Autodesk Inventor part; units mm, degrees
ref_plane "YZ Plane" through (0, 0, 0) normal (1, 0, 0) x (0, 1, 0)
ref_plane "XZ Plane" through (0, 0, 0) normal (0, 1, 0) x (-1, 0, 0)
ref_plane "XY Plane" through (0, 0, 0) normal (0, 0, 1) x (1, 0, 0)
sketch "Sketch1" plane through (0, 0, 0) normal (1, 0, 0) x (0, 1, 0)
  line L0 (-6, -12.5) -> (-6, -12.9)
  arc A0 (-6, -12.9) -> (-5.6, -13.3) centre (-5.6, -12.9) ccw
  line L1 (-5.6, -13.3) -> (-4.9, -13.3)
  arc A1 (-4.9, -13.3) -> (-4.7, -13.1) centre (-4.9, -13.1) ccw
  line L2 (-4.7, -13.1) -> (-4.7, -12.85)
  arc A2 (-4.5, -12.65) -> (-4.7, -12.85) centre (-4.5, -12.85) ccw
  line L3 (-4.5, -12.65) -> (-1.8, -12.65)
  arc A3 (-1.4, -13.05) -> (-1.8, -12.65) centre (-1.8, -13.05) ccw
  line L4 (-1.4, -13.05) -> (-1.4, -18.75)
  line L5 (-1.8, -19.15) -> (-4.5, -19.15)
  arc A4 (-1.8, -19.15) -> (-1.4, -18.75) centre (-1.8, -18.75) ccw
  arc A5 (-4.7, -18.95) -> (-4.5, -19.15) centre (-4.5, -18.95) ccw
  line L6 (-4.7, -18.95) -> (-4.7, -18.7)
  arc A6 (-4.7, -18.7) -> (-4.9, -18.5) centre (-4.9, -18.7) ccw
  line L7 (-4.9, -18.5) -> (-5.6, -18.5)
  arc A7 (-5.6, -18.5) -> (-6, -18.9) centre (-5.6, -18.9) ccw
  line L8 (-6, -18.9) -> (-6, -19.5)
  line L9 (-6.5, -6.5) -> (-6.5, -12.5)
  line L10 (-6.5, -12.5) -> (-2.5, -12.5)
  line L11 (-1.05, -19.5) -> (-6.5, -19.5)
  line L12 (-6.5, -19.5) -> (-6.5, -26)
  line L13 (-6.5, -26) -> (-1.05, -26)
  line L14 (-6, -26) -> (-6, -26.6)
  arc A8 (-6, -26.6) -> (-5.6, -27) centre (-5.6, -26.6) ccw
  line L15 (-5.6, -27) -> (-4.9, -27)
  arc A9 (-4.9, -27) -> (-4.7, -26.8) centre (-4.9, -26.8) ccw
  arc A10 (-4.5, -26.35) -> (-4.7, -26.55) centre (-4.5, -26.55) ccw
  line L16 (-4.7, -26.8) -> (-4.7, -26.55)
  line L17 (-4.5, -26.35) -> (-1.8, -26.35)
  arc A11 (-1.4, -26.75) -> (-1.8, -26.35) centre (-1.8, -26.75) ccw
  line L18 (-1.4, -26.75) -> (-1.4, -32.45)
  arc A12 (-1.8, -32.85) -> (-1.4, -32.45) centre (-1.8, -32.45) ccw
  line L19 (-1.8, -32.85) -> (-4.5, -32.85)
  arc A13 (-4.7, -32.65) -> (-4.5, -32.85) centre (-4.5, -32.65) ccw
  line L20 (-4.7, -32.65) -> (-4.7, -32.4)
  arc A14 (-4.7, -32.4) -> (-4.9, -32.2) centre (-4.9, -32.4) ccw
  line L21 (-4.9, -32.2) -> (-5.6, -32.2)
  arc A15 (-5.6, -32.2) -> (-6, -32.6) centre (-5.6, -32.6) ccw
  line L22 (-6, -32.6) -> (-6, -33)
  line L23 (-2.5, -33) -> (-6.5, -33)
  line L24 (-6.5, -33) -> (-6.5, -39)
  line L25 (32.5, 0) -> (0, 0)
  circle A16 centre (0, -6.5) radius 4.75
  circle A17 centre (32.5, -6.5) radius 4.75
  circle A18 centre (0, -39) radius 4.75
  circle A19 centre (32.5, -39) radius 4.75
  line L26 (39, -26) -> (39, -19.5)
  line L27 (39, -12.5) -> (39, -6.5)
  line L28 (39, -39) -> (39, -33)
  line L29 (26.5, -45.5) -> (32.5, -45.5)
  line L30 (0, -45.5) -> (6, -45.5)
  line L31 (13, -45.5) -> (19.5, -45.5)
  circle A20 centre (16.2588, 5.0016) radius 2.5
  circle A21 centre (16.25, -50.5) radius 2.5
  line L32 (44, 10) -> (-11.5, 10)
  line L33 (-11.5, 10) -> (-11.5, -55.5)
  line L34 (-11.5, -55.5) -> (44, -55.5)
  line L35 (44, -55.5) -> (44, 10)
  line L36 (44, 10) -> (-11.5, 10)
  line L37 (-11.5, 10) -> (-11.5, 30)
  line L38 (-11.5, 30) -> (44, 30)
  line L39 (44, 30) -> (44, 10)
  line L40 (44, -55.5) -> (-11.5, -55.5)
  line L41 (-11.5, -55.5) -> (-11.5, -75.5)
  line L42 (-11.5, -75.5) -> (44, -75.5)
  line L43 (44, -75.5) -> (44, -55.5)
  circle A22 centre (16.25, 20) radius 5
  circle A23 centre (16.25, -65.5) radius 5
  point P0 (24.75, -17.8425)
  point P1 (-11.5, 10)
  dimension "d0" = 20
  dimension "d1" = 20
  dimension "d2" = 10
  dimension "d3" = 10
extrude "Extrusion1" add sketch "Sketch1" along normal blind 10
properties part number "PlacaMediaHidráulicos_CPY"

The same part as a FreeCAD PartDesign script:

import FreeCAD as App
import Part
import Sketcher

V = App.Vector
Q = App.Units.Quantity

doc = App.newDocument("Part")
body = doc.addObject("PartDesign::Body", "Body")

# Sketch on YZ plane
sketch1 = doc.addObject("Sketcher::SketchObject", "Sketch")
body.addObject(sketch1)
sketch1.AttachmentSupport = (doc.YZ_Plane, [""])
sketch1.MapMode = "FlatFace"
sketch1.addGeometry(Part.LineSegment(V(44, 30, 0), V(-11.5, 30, 0)), False)
sketch1.addGeometry(Part.LineSegment(V(-11.5, 30, 0), V(-11.5, -75.5, 0)), False)
sketch1.addGeometry(Part.LineSegment(V(-11.5, -75.5, 0), V(44, -75.5, 0)), False)
sketch1.addGeometry(Part.LineSegment(V(44, -75.5, 0), V(44, 30, 0)), False)
sketch1.addGeometry(Part.Circle(V(0, -39, 0), V(0, 0, 1), 4.8), False)
sketch1.addGeometry(Part.Circle(V(16.2, -50.5, 0), V(0, 0, 1), 2.5), False)
sketch1.addGeometry(Part.Circle(V(32.5, -39, 0), V(0, 0, 1), 4.8), False)
sketch1.addGeometry(Part.Circle(V(0, -6.5, 0), V(0, 0, 1), 4.8), False)
sketch1.addGeometry(Part.Circle(V(32.5, -6.5, 0), V(0, 0, 1), 4.8), False)
sketch1.addGeometry(Part.Circle(V(16.3, 5, 0), V(0, 0, 1), 2.5), False)
sketch1.addGeometry(Part.Circle(V(16.2, -65.5, 0), V(0, 0, 1), 5), False)
sketch1.addGeometry(Part.Circle(V(16.2, 20, 0), V(0, 0, 1), 5), False)
sketch1.addConstraint(Sketcher.Constraint("Coincident", 0, 2, 1, 1))
sketch1.addConstraint(Sketcher.Constraint("Coincident", 1, 2, 2, 1))
sketch1.addConstraint(Sketcher.Constraint("Coincident", 2, 2, 3, 1))
sketch1.addConstraint(Sketcher.Constraint("Coincident", 3, 2, 0, 1))
sketch1.addConstraint(Sketcher.Constraint("Horizontal", 0))
sketch1.addConstraint(Sketcher.Constraint("Vertical", 1))
sketch1.addConstraint(Sketcher.Constraint("Horizontal", 2))
sketch1.addConstraint(Sketcher.Constraint("Vertical", 3))
sketch1.addConstraint(Sketcher.Constraint("Equal", 4, 6))
sketch1.addConstraint(Sketcher.Constraint("Equal", 6, 7))
sketch1.addConstraint(Sketcher.Constraint("Equal", 7, 8))
sketch1.addConstraint(Sketcher.Constraint("Equal", 5, 9))
sketch1.addConstraint(Sketcher.Constraint("Equal", 10, 11))
sketch1.addConstraint(Sketcher.Constraint("PointOnObject", 4, 3, -2))
sketch1.addConstraint(Sketcher.Constraint("PointOnObject", 7, 3, -2))
sketch1.addConstraint(Sketcher.Constraint("Horizontal", 4, 3, 6, 3))
sketch1.addConstraint(Sketcher.Constraint("Horizontal", 7, 3, 8, 3))
sketch1.addConstraint(Sketcher.Constraint("Vertical", 6, 3, 8, 3))
sketch1.addConstraint(Sketcher.Constraint("Vertical", 5, 3, 10, 3))
sketch1.addConstraint(Sketcher.Constraint("Vertical", 10, 3, 11, 3))
sketch1.addConstraint(Sketcher.Constraint("Diameter", 10, Q("10 mm")))
sketch1.addConstraint(Sketcher.Constraint("Diameter", 5, Q("5 mm")))
sketch1.addConstraint(Sketcher.Constraint("DistanceY", -1, 1, 11, 3, Q("20 mm")))
sketch1.addConstraint(Sketcher.Constraint("DistanceY", 11, 3, 0, 2, Q("10 mm")))
sketch1.addConstraint(Sketcher.Constraint("DistanceY", 1, 2, 10, 3, Q("10 mm")))
sketch1.addConstraint(Sketcher.Constraint("Diameter", 4, Q("9.5 mm")))
sketch1.addConstraint(Sketcher.Constraint("DistanceX", 0, 2, 0, 1, Q("55.5 mm")))
sketch1.addConstraint(Sketcher.Constraint("DistanceY", 1, 2, 1, 1, Q("105.5 mm")))
sketch1.addConstraint(Sketcher.Constraint("DistanceY", 4, 3, -1, 1, Q("39 mm")))
sketch1.addConstraint(Sketcher.Constraint("DistanceX", -1, 1, 2, 2, Q("44 mm")))
sketch1.addConstraint(Sketcher.Constraint("DistanceY", 5, 3, 7, 3, Q("44 mm")))
sketch1.addConstraint(Sketcher.Constraint("DistanceY", 10, 3, 5, 3, Q("15 mm")))
sketch1.addConstraint(Sketcher.Constraint("DistanceX", 0, 2, 8, 3, Q("44 mm")))
sketch1.addConstraint(Sketcher.Constraint("DistanceX", -1, 1, 5, 3, Q("16.25 mm")))
sketch1.addConstraint(Sketcher.Constraint("DistanceX", -1, 1, 9, 3, Q("16.2588 mm")))
sketch1.addConstraint(Sketcher.Constraint("DistanceY", -1, 1, 9, 3, Q("5.0016 mm")))
pad1 = doc.addObject("PartDesign::Pad", "Pad")
body.addObject(pad1)
pad1.Profile = sketch1
pad1.Length = 10

doc.recompute()
